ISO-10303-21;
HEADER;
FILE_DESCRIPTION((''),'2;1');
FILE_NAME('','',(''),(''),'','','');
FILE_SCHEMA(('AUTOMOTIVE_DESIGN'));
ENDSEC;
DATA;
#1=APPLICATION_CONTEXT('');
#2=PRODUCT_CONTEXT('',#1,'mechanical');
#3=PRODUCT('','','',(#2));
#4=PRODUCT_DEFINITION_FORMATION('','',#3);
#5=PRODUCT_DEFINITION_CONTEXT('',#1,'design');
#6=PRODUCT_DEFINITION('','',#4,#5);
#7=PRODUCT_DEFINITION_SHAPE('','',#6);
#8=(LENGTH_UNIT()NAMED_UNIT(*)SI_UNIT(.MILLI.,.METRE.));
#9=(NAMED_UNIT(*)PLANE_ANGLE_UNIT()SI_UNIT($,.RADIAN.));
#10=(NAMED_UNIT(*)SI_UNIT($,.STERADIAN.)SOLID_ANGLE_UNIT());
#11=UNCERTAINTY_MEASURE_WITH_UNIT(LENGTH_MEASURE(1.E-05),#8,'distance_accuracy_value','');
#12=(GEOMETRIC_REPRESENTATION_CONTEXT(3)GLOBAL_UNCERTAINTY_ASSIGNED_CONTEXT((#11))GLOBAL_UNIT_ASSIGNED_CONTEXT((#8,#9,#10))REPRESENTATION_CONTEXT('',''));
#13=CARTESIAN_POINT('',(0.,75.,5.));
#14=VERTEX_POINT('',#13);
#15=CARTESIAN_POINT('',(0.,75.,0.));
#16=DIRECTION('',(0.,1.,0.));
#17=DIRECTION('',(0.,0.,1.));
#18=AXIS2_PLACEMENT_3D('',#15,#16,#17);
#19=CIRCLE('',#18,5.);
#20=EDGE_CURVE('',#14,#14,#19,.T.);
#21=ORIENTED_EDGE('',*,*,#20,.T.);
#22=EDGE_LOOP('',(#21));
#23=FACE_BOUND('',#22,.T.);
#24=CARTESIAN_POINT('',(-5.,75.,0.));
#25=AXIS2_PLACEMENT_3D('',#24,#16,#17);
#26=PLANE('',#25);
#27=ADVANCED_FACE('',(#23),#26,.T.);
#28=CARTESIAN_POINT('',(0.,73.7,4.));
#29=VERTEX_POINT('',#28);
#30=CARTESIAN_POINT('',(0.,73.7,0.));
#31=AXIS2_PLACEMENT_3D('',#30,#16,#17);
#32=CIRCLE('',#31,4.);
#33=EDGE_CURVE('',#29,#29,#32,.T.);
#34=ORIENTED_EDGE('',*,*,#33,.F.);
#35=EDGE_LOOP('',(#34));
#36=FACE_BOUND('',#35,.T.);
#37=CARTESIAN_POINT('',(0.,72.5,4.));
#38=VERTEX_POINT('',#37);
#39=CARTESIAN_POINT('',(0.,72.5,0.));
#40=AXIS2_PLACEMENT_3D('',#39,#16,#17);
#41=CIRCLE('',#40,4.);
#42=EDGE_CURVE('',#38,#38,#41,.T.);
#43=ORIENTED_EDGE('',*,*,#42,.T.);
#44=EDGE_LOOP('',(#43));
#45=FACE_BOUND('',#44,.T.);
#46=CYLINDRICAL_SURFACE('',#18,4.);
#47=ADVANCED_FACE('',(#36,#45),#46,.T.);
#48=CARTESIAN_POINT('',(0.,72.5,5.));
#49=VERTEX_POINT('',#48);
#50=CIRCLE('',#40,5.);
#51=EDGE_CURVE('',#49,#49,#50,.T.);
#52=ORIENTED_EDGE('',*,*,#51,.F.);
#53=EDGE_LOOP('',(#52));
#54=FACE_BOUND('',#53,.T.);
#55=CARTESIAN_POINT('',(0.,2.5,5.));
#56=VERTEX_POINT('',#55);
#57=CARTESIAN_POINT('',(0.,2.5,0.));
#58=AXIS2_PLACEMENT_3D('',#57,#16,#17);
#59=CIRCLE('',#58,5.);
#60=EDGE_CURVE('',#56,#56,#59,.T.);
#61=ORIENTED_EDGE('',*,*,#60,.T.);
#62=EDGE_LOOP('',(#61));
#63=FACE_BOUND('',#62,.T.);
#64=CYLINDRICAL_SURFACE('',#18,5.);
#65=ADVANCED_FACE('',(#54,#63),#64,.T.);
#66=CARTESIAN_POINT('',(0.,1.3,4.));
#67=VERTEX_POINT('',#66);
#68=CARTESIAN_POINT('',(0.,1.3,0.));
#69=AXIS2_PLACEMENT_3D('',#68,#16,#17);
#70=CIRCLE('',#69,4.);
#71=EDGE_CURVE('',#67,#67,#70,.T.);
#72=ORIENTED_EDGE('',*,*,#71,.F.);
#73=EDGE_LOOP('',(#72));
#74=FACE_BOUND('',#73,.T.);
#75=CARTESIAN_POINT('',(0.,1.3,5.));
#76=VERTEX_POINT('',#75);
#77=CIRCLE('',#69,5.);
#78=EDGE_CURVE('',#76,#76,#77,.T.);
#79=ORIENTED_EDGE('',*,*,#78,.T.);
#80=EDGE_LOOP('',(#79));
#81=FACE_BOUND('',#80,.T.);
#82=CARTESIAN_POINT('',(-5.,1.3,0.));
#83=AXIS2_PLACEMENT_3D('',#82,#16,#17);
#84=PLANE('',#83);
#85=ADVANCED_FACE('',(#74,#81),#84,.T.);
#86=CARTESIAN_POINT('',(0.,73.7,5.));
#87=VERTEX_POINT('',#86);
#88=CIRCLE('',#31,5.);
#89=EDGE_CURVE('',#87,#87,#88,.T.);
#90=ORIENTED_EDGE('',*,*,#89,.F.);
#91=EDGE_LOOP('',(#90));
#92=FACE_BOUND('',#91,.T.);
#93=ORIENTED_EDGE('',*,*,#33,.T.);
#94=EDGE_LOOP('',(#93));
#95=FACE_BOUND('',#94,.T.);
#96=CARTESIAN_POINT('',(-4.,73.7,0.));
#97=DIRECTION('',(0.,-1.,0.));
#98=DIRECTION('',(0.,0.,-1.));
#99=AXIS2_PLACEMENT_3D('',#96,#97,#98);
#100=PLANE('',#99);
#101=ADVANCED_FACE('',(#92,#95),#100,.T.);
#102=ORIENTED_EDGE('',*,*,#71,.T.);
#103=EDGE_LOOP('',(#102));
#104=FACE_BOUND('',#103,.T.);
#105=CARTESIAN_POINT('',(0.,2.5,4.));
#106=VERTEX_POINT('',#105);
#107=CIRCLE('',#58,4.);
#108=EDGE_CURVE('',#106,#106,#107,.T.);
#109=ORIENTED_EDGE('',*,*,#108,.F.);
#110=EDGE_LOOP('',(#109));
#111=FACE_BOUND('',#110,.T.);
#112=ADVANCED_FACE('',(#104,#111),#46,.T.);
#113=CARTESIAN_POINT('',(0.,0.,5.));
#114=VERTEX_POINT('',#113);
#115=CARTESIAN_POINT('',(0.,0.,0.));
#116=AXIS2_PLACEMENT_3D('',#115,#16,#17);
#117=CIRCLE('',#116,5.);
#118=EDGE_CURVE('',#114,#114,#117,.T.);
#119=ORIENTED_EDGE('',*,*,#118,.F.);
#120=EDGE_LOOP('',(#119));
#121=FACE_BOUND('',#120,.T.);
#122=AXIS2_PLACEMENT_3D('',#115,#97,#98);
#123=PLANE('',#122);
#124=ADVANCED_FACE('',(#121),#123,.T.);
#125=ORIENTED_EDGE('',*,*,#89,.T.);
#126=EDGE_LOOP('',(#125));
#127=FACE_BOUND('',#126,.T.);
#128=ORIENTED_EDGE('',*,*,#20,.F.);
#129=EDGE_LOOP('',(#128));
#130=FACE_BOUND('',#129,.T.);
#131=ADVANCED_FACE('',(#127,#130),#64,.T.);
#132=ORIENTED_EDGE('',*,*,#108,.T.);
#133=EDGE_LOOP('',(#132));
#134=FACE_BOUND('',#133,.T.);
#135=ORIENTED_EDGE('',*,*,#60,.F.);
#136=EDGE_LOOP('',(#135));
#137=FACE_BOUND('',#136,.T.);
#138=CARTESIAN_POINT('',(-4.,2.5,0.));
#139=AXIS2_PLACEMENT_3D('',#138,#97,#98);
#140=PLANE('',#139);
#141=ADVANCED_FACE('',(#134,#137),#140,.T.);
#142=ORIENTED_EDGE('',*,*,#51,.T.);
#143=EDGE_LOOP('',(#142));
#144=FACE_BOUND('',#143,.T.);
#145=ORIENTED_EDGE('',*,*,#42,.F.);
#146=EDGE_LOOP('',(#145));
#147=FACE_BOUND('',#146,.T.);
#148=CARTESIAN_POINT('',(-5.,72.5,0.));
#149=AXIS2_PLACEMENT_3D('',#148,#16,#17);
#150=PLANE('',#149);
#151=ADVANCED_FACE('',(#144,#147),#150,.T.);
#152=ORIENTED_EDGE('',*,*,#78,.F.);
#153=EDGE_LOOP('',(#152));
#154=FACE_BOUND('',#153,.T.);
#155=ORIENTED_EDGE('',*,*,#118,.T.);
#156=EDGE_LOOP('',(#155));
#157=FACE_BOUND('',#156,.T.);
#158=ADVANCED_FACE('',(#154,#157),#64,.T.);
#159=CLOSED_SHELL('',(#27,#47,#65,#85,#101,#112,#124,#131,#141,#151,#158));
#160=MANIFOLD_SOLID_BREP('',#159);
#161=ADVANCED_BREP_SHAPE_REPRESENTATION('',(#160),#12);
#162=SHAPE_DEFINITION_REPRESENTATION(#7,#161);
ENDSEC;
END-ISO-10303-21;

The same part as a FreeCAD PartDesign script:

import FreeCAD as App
import Part
import Sketcher
from FreeCAD import Vector


def add_polygon(sketch, points):
    """Adds a closed chain of lines whose ends are joined by coincident constraints."""
    first, n = sketch.GeometryCount, len(points)
    for a, b in zip(points, points[1:] + points[:1]):
        sketch.addGeometry(Part.LineSegment(App.Vector(*a, 0), App.Vector(*b, 0)), False)
    for i in range(n):
        sketch.addConstraint(Sketcher.Constraint("Coincident", first + i, 2, first + (i + 1) % n, 1))

doc = App.newDocument("Part")
body = doc.addObject("PartDesign::Body", "Body")

sketch1 = body.newObject("Sketcher::SketchObject", "Sketch")
sketch1.AttachmentSupport = (doc.getObject("XY_Plane"), [""])
sketch1.MapMode = "FlatFace"
add_polygon(sketch1, [(-5, 0), (0, 0), (0, 75), (-5, 75), (-5, 73.7), (-4, 73.7), (-4, 72.5), (-5, 72.5), (-5, 2.5), (-4, 2.5), (-4, 1.3), (-5, 1.3)])
sketch1.addConstraint([
    Sketcher.Constraint("Horizontal", 0),
    Sketcher.Constraint("Vertical", 1),
    Sketcher.Constraint("Horizontal", 2),
    Sketcher.Constraint("Vertical", 3),
    Sketcher.Constraint("Horizontal", 4),
    Sketcher.Constraint("Vertical", 5),
    Sketcher.Constraint("Horizontal", 6),
    Sketcher.Constraint("Vertical", 7),
    Sketcher.Constraint("Horizontal", 8),
    Sketcher.Constraint("Vertical", 9),
    Sketcher.Constraint("Horizontal", 10),
    Sketcher.Constraint("Vertical", 11),
    Sketcher.Constraint("Coincident", 0, 2, -1, 1),
    Sketcher.Constraint("Vertical", 3, 2, 6, 2),
    Sketcher.Constraint("Vertical", 5, 2, 8, 2),
    Sketcher.Constraint("Vertical", 7, 2, 10, 2),
    Sketcher.Constraint("Equal", 5, 9),
    Sketcher.Constraint("Equal", 3, 11),
    Sketcher.Constraint("DistanceX", 0, 1, 0, 2, 5.0),
    Sketcher.Constraint("DistanceX", 4, 1, 4, 2, 1.0),
    Sketcher.Constraint("DistanceY", 1, 1, 1, 2, 75.0),
    Sketcher.Constraint("DistanceY", 7, 2, 7, 1, 70.0),
    Sketcher.Constraint("DistanceY", 3, 2, 3, 1, 1.3),
])
revolution = body.newObject("PartDesign::Revolution", "Revolution")
revolution.Profile = sketch1
revolution.ReferenceAxis = (sketch1, ["V_Axis"])
revolution.Angle = 360

doc.recompute()
